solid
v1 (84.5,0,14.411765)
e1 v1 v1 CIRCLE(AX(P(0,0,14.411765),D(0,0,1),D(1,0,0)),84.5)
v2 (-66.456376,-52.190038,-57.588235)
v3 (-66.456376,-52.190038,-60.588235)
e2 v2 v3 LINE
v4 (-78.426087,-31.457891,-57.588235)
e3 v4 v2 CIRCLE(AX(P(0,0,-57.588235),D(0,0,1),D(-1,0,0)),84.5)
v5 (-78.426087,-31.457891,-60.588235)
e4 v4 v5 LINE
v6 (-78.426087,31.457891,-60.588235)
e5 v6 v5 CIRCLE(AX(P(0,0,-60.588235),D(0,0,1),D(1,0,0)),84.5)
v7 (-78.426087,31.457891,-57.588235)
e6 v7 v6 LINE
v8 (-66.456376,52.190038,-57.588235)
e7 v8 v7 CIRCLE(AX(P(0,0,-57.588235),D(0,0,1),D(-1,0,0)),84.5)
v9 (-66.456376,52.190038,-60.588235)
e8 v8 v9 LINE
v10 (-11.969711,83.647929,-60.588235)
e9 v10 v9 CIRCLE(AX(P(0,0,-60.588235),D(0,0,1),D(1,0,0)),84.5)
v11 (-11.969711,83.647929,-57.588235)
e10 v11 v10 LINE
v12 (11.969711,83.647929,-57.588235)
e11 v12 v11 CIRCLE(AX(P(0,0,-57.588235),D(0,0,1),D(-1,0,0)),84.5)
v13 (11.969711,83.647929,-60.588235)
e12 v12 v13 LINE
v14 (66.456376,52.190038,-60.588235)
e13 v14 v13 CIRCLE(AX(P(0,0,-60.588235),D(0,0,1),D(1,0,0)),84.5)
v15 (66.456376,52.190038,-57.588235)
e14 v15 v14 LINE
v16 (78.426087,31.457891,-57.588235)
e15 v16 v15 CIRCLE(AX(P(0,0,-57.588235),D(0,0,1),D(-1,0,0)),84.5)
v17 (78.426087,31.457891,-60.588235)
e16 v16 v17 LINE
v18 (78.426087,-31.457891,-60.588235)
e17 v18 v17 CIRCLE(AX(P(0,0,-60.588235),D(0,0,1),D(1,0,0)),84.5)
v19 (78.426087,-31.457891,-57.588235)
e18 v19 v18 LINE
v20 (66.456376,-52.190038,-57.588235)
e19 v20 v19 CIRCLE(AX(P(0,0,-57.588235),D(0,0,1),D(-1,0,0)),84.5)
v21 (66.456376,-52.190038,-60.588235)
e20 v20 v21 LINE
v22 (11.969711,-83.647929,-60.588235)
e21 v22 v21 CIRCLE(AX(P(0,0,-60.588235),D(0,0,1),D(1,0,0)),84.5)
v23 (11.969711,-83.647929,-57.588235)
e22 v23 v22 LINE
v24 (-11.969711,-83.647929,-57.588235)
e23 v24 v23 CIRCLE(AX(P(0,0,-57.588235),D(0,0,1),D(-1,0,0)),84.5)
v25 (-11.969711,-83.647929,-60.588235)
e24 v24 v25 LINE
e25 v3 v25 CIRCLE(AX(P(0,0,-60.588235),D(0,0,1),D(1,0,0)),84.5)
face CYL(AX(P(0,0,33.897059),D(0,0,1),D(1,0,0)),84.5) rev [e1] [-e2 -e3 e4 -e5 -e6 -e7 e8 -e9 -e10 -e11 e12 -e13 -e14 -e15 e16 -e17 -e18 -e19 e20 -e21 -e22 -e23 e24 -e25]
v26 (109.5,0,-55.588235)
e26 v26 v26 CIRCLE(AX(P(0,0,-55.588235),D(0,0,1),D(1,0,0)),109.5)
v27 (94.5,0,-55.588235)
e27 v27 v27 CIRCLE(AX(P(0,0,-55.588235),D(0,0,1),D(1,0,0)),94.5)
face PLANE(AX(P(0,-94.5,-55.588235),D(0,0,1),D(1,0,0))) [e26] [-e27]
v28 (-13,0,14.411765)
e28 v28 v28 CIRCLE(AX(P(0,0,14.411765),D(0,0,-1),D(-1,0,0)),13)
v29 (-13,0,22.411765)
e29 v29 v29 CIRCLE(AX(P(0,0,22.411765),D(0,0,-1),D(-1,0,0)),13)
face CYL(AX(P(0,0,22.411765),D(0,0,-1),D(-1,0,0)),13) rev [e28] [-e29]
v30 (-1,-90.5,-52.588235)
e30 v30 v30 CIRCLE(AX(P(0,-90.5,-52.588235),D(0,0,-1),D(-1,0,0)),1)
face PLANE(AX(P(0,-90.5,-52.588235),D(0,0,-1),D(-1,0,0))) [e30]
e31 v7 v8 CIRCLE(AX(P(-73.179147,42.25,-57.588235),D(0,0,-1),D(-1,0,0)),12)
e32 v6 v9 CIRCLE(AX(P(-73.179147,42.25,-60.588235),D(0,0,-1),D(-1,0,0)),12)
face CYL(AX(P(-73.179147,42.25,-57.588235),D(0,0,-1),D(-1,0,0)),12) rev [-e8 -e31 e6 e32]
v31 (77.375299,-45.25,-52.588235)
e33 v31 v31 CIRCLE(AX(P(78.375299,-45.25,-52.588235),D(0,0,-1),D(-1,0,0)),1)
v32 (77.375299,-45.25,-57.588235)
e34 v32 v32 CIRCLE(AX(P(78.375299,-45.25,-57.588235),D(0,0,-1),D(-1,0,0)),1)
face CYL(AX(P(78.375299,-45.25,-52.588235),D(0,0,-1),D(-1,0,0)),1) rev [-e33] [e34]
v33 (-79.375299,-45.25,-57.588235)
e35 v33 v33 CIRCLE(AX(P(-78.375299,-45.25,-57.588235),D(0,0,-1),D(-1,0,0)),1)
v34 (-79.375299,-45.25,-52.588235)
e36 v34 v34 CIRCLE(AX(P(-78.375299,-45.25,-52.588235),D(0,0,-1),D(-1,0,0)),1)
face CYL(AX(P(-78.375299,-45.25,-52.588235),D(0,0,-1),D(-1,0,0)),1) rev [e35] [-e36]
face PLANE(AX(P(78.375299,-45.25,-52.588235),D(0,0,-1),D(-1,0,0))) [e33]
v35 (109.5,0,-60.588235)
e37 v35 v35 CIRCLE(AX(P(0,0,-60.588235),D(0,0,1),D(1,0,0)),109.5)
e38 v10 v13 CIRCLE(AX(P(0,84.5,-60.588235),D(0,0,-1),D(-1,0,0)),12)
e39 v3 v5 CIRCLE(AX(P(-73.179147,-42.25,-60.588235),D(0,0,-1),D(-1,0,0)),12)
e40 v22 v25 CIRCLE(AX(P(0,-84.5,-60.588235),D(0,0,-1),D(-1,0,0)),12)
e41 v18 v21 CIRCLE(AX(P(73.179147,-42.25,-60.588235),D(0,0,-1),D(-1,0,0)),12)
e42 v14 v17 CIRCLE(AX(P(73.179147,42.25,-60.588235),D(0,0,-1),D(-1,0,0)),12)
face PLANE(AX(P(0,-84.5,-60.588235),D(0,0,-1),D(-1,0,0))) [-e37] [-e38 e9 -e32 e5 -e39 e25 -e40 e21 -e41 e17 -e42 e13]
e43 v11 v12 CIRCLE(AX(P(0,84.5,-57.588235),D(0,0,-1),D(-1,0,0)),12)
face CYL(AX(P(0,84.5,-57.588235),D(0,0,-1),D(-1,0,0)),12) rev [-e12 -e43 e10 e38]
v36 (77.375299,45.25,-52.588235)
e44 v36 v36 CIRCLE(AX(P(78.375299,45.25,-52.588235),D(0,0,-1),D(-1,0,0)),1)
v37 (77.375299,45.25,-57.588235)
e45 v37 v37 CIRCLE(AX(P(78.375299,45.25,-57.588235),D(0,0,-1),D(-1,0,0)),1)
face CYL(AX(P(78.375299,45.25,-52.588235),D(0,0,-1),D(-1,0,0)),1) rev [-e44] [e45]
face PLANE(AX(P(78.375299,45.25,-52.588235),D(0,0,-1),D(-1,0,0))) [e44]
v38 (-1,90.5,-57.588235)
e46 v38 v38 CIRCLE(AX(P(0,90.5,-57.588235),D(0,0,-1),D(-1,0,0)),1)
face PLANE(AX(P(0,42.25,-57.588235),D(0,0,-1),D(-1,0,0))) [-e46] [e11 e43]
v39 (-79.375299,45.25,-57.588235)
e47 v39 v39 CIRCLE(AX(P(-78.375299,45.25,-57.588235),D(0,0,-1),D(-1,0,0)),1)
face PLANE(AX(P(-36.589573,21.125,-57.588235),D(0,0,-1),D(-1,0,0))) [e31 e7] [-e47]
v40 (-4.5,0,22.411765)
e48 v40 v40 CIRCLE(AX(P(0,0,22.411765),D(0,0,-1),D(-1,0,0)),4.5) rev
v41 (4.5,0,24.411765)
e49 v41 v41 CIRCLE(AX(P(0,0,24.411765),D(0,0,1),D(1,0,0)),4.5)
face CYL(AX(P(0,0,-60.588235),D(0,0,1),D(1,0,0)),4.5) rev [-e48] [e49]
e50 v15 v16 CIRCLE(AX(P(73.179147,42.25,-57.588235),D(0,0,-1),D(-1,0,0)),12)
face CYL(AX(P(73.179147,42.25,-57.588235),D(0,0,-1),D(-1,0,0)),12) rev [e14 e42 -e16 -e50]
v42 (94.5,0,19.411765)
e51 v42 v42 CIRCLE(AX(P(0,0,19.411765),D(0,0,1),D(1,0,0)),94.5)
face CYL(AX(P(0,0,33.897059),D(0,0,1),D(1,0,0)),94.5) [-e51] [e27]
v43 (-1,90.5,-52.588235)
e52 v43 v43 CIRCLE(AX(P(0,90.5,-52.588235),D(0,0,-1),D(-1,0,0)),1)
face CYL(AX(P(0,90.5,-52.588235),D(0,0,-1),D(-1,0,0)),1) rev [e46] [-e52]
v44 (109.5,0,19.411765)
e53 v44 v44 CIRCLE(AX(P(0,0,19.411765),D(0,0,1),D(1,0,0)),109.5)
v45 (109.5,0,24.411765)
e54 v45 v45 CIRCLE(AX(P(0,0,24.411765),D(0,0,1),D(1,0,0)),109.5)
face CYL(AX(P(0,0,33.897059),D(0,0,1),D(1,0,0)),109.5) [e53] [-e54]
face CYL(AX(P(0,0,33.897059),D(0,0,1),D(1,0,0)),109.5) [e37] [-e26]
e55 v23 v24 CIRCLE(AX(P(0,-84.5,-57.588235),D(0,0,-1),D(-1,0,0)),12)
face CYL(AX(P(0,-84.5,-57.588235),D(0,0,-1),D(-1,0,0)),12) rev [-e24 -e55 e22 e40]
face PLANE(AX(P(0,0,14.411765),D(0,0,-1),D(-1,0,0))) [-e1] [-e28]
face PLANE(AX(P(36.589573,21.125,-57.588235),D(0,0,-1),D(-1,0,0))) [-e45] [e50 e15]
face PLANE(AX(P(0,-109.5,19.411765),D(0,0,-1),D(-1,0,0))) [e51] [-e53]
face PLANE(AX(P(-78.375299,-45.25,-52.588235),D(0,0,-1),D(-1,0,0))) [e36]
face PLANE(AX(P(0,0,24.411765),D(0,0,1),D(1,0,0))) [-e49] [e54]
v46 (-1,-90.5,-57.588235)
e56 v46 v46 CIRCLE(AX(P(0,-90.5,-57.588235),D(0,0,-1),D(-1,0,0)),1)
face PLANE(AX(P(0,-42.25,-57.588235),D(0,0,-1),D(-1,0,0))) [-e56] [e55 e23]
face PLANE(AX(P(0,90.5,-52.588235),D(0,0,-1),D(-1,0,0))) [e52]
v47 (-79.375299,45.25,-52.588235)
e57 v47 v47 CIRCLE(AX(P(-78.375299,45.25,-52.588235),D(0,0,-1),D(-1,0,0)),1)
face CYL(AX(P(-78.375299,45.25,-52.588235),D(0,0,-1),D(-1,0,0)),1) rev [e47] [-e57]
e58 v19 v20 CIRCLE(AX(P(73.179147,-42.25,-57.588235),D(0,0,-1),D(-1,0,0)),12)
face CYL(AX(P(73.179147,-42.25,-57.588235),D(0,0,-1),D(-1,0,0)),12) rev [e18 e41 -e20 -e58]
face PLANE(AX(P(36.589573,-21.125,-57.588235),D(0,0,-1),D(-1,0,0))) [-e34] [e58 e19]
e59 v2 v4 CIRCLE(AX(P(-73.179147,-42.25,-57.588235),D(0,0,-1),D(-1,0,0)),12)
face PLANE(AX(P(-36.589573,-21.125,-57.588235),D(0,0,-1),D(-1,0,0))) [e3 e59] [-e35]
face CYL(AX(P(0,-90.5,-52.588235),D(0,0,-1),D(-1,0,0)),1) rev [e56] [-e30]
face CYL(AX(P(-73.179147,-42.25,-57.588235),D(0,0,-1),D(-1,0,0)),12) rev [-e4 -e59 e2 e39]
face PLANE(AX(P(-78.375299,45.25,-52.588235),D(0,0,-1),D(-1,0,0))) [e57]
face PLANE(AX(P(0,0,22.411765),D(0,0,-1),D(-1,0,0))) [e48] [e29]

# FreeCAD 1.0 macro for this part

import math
import FreeCAD as App
import Part
import Sketcher

V = App.Vector


def add_polygon(sketch, points):
    """Adds a closed chain of lines whose ends are joined by coincident constraints."""
    first, n = sketch.GeometryCount, len(points)
    for a, b in zip(points, points[1:] + points[:1]):
        sketch.addGeometry(Part.LineSegment(App.Vector(*a, 0), App.Vector(*b, 0)), False)
    for i in range(n):
        sketch.addConstraint(Sketcher.Constraint("Coincident", first + i, 2, first + (i + 1) % n, 1))

doc = App.newDocument("Part")
params = doc.addObject("Spreadsheet::Sheet", "Params")
for row, (alias, value) in enumerate([
    ("sketch1_width", "15 mm"),
    ("sketch1_width2", "25 mm"),
    ("sketch1_height", "5 mm"),
    ("sketch1_height2", "75 mm"),
    ("sketch1_width3", "109.5 mm"),
    ("revolution_angle", "360 deg"),
    ("sketch2_diameter", "9 mm"),
    ("sketch3_diameter", "26 mm"),
    ("pocket2_length", "8 mm"),
    ("sketch4_radius", "12 mm"),
    ("sketch4_radius2", "84.5 mm"),
    ("pocket3_length", "3 mm"),
    ("sketch5_diameter", "2 mm"),
    ("pocket4_length", "5 mm"),
], start=1):
    params.set(f"A{row}", alias)
    params.set(f"B{row}", "=" + value)
    params.setAlias(f"B{row}", alias)

body = doc.addObject("PartDesign::Body", "Body")

# Sketch on YZ plane
sketch1 = doc.addObject("Sketcher::SketchObject", "Sketch")
body.addObject(sketch1)
sketch1.AttachmentSupport = (doc.YZ_Plane, [""])
sketch1.MapMode = "FlatFace"
add_polygon(sketch1, [(0, 24), (-110, 24), (-110, 19), (-94, 19), (-94, -56), (-110, -56), (-110, -61), (-84, -61), (-84, 14), (0, 14)])  # lines 0-9
sketch1.addConstraint(Sketcher.Constraint("Horizontal", 0))
sketch1.addConstraint(Sketcher.Constraint("Vertical", 1))
sketch1.addConstraint(Sketcher.Constraint("Horizontal", 2))
sketch1.addConstraint(Sketcher.Constraint("Vertical", 3))
sketch1.addConstraint(Sketcher.Constraint("Horizontal", 4))
sketch1.addConstraint(Sketcher.Constraint("Vertical", 5))
sketch1.addConstraint(Sketcher.Constraint("Horizontal", 6))
sketch1.addConstraint(Sketcher.Constraint("Vertical", 7))
sketch1.addConstraint(Sketcher.Constraint("Horizontal", 8))
sketch1.addConstraint(Sketcher.Constraint("Vertical", 9))
sketch1.addConstraint(Sketcher.Constraint("PointOnObject", 8, 2, -2))
sketch1.addConstraint(Sketcher.Constraint("Vertical", 1, 2, 4, 2))
sketch1.addConstraint(Sketcher.Constraint("Equal", 1, 5))
sketch1.addConstraint(Sketcher.Constraint("Equal", 3, 7))
sketch1.addConstraint(Sketcher.Constraint("DistanceX", 2, 1, 2, 2, 15.0))
sketch1.addConstraint(Sketcher.Constraint("DistanceX", 6, 1, 6, 2, 25.0))
sketch1.addConstraint(Sketcher.Constraint("DistanceY", 1, 2, 1, 1, 5.0))
sketch1.addConstraint(Sketcher.Constraint("DistanceY", 3, 2, 3, 1, 75.0))
sketch1.addConstraint(Sketcher.Constraint("DistanceX", 0, 2, 0, 1, 109.5))
sketch1.addConstraint(Sketcher.Constraint("DistanceY", -1, 1, 0, 2, 24.411765))
sketch1.setExpression("Constraints[24]", "Params.sketch1_width")
sketch1.setExpression("Constraints[25]", "Params.sketch1_width2")
sketch1.setExpression("Constraints[26]", "Params.sketch1_height")
sketch1.setExpression("Constraints[27]", "Params.sketch1_height2")
sketch1.setExpression("Constraints[28]", "Params.sketch1_width3")
revolution = doc.addObject("PartDesign::Revolution", "Revolution")
body.addObject(revolution)
revolution.Profile = sketch1
revolution.ReferenceAxis = (sketch1, ["V_Axis"])
revolution.setExpression("Angle", "Params.revolution_angle")

# Sketch on XY plane
sketch2 = doc.addObject("Sketcher::SketchObject", "Sketch001")
body.addObject(sketch2)
sketch2.AttachmentSupport = (doc.XY_Plane, [""])
sketch2.MapMode = "FlatFace"
sketch2.AttachmentOffset = App.Placement(V(0, 0, 24.411765), App.Rotation())
sketch2.addGeometry(Part.Circle(V(0, 0, 0), V(0, 0, 1), 4.5), False)
sketch2.addConstraint(Sketcher.Constraint("Coincident", 0, 3, -1, 1))
sketch2.addConstraint(Sketcher.Constraint("Diameter", 0, 9.0))
sketch2.setExpression("Constraints[1]", "Params.sketch2_diameter")
pocket1 = doc.addObject("PartDesign::Pocket", "Pocket")
body.addObject(pocket1)
pocket1.Profile = sketch2
pocket1.Type = "ThroughAll"

# Sketch on XY plane
sketch3 = doc.addObject("Sketcher::SketchObject", "Sketch002")
body.addObject(sketch3)
sketch3.AttachmentSupport = (doc.XY_Plane, [""])
sketch3.MapMode = "FlatFace"
sketch3.AttachmentOffset = App.Placement(V(0, 0, 14.411765), App.Rotation())
sketch3.addGeometry(Part.Circle(V(0, 0, 0), V(0, 0, 1), 13), False)
sketch3.addConstraint(Sketcher.Constraint("Coincident", 0, 3, -1, 1))
sketch3.addConstraint(Sketcher.Constraint("Diameter", 0, 26.0))
sketch3.setExpression("Constraints[1]", "Params.sketch3_diameter")
pocket2 = doc.addObject("PartDesign::Pocket", "Pocket001")
body.addObject(pocket2)
pocket2.Profile = sketch3
pocket2.setExpression("Length", "Params.pocket2_length")
pocket2.Reversed = True

# Sketch on XY plane
sketch4 = doc.addObject("Sketcher::SketchObject", "Sketch003")
body.addObject(sketch4)
sketch4.AttachmentSupport = (doc.XY_Plane, [""])
sketch4.MapMode = "FlatFace"
sketch4.AttachmentOffset = App.Placement(V(0, 0, -60.588235), App.Rotation())
sketch4.addGeometry(Part.ArcOfCircle(Part.Circle(V(0, 84, 0), V(0, 0, 1), 12), math.radians(-4), math.radians(184)), False)
sketch4.addGeometry(Part.ArcOfCircle(Part.Circle(V(0, 0, 0), V(0, 0, 1), 84), math.radians(81.86), math.radians(98.14)), False)
sketch4.addGeometry(Part.ArcOfCircle(Part.Circle(V(-73, 42, 0), V(0, 0, 1), 12), math.radians(56), math.radians(244)), False)
sketch4.addGeometry(Part.ArcOfCircle(Part.Circle(V(0, 0, 0), V(0, 0, 1), 84), math.radians(141.86), math.radians(158.14)), False)
sketch4.addGeometry(Part.ArcOfCircle(Part.Circle(V(-73, -42, 0), V(0, 0, 1), 12), math.radians(116), math.radians(304)), False)
sketch4.addGeometry(Part.ArcOfCircle(Part.Circle(V(0, 0, 0), V(0, 0, 1), 84), math.radians(-158.14), math.radians(-141.86)), False)
sketch4.addGeometry(Part.ArcOfCircle(Part.Circle(V(0, -84, 0), V(0, 0, 1), 12), math.radians(176), math.radians(364)), False)
sketch4.addGeometry(Part.ArcOfCircle(Part.Circle(V(0, 0, 0), V(0, 0, 1), 84), math.radians(-98.14), math.radians(-81.86)), False)
sketch4.addGeometry(Part.ArcOfCircle(Part.Circle(V(73, -42, 0), V(0, 0, 1), 12), math.radians(-124), math.radians(64)), False)
sketch4.addGeometry(Part.ArcOfCircle(Part.Circle(V(0, 0, 0), V(0, 0, 1), 84), math.radians(-38.14), math.radians(-21.86)), False)
sketch4.addGeometry(Part.ArcOfCircle(Part.Circle(V(73, 42, 0), V(0, 0, 1), 12), math.radians(-64), math.radians(124)), False)
sketch4.addGeometry(Part.ArcOfCircle(Part.Circle(V(0, 0, 0), V(0, 0, 1), 84), math.radians(21.86), math.radians(38.14)), False)
sketch4.addConstraint(Sketcher.Constraint("Coincident", 0, 1, 1, 1))
sketch4.addConstraint(Sketcher.Constraint("Coincident", 1, 2, 0, 2))
sketch4.addConstraint(Sketcher.Constraint("Coincident", 2, 1, 3, 1))
sketch4.addConstraint(Sketcher.Constraint("Coincident", 3, 2, 2, 2))
sketch4.addConstraint(Sketcher.Constraint("Coincident", 4, 1, 5, 1))
sketch4.addConstraint(Sketcher.Constraint("Coincident", 5, 2, 4, 2))
sketch4.addConstraint(Sketcher.Constraint("Coincident", 6, 1, 7, 1))
sketch4.addConstraint(Sketcher.Constraint("Coincident", 7, 2, 6, 2))
sketch4.addConstraint(Sketcher.Constraint("Coincident", 8, 1, 9, 1))
sketch4.addConstraint(Sketcher.Constraint("Coincident", 9, 2, 8, 2))
sketch4.addConstraint(Sketcher.Constraint("Coincident", 10, 1, 11, 1))
sketch4.addConstraint(Sketcher.Constraint("Coincident", 11, 2, 10, 2))
sketch4.addConstraint(Sketcher.Constraint("Coincident", 1, 3, -1, 1))
sketch4.addConstraint(Sketcher.Constraint("Coincident", 3, 3, -1, 1))
sketch4.addConstraint(Sketcher.Constraint("Coincident", 5, 3, -1, 1))
sketch4.addConstraint(Sketcher.Constraint("Coincident", 7, 3, -1, 1))
sketch4.addConstraint(Sketcher.Constraint("Coincident", 9, 3, -1, 1))
sketch4.addConstraint(Sketcher.Constraint("Coincident", 11, 3, -1, 1))
sketch4.addConstraint(Sketcher.Constraint("Equal", 0, 2))
sketch4.addConstraint(Sketcher.Constraint("Equal", 1, 3))
sketch4.addConstraint(Sketcher.Constraint("Equal", 2, 4))
sketch4.addConstraint(Sketcher.Constraint("Equal", 3, 5))
sketch4.addConstraint(Sketcher.Constraint("Equal", 4, 6))
sketch4.addConstraint(Sketcher.Constraint("Equal", 5, 7))
sketch4.addConstraint(Sketcher.Constraint("Equal", 6, 8))
sketch4.addConstraint(Sketcher.Constraint("Equal", 7, 9))
sketch4.addConstraint(Sketcher.Constraint("Equal", 8, 10))
sketch4.addConstraint(Sketcher.Constraint("Equal", 9, 11))
sketch4.addConstraint(Sketcher.Constraint("Symmetric", 0, 3, 6, 3, -1, 1))
sketch4.addConstraint(Sketcher.Constraint("Symmetric", 2, 3, 8, 3, -1, 1))
sketch4.addConstraint(Sketcher.Constraint("Symmetric", 4, 3, 10, 3, -1, 1))
sketch4.addConstraint(Sketcher.Constraint("Symmetric", 4, 3, 8, 3, -2))
sketch4.addConstraint(Sketcher.Constraint("PointOnObject", 0, 3, -2))
sketch4.addConstraint(Sketcher.Constraint("Radius", 0, 12.0))
sketch4.addConstraint(Sketcher.Constraint("Radius", 1, 84.5))
sketch4.addConstraint(Sketcher.Constraint("DistanceY", -1, 1, 0, 3, 84.5))
sketch4.addConstraint(Sketcher.Constraint("DistanceY", 4, 3, 2, 3, 84.5))
sketch4.addConstraint(Sketcher.Constraint("DistanceY", -1, 1, 2, 1, 52.190038))
sketch4.setExpression("Constraints[33]", "Params.sketch4_radius")
sketch4.setExpression("Constraints[34]", "Params.sketch4_radius2")
pocket3 = doc.addObject("PartDesign::Pocket", "Pocket002")
body.addObject(pocket3)
pocket3.Profile = sketch4
pocket3.setExpression("Length", "Params.pocket3_length")
pocket3.Reversed = True

# Sketch on XY plane
sketch5 = doc.addObject("Sketcher::SketchObject", "Sketch004")
body.addObject(sketch5)
sketch5.AttachmentSupport = (doc.XY_Plane, [""])
sketch5.MapMode = "FlatFace"
sketch5.AttachmentOffset = App.Placement(V(0, 0, -57.588235), App.Rotation())
sketch5.addGeometry(Part.Circle(V(0, 90.5, 0), V(0, 0, 1), 1), False)
sketch5.addGeometry(Part.Circle(V(-78.4, 45.2, 0), V(0, 0, 1), 1), False)
sketch5.addGeometry(Part.Circle(V(-78.4, -45.2, 0), V(0, 0, 1), 1), False)
sketch5.addGeometry(Part.Circle(V(0, -90.5, 0), V(0, 0, 1), 1), False)
sketch5.addGeometry(Part.Circle(V(78.4, -45.2, 0), V(0, 0, 1), 1), False)
sketch5.addGeometry(Part.Circle(V(78.4, 45.2, 0), V(0, 0, 1), 1), False)
sketch5.addConstraint(Sketcher.Constraint("Equal", 0, 1))
sketch5.addConstraint(Sketcher.Constraint("Equal", 1, 2))
sketch5.addConstraint(Sketcher.Constraint("Equal", 2, 3))
sketch5.addConstraint(Sketcher.Constraint("Equal", 3, 4))
sketch5.addConstraint(Sketcher.Constraint("Equal", 4, 5))
sketch5.addConstraint(Sketcher.Constraint("Symmetric", 0, 3, 3, 3, -1, 1))
sketch5.addConstraint(Sketcher.Constraint("Symmetric", 1, 3, 4, 3, -1, 1))
sketch5.addConstraint(Sketcher.Constraint("Symmetric", 2, 3, 5, 3, -1, 1))
sketch5.addConstraint(Sketcher.Constraint("Symmetric", 2, 3, 4, 3, -2))
sketch5.addConstraint(Sketcher.Constraint("PointOnObject", 0, 3, -2))
sketch5.addConstraint(Sketcher.Constraint("Diameter", 0, 2.0))
sketch5.addConstraint(Sketcher.Constraint("DistanceY", 3, 3, 0, 3, 181.0))
sketch5.addConstraint(Sketcher.Constraint("DistanceY", 2, 3, 1, 3, 90.5))
sketch5.addConstraint(Sketcher.Constraint("DistanceX", 1, 3, -1, 1, 78.375299))
sketch5.setExpression("Constraints[10]", "Params.sketch5_diameter")
pocket4 = doc.addObject("PartDesign::Pocket", "Pocket003")
body.addObject(pocket4)
pocket4.Profile = sketch5
pocket4.setExpression("Length", "Params.pocket4_length")
pocket4.Reversed = True

doc.recompute()
